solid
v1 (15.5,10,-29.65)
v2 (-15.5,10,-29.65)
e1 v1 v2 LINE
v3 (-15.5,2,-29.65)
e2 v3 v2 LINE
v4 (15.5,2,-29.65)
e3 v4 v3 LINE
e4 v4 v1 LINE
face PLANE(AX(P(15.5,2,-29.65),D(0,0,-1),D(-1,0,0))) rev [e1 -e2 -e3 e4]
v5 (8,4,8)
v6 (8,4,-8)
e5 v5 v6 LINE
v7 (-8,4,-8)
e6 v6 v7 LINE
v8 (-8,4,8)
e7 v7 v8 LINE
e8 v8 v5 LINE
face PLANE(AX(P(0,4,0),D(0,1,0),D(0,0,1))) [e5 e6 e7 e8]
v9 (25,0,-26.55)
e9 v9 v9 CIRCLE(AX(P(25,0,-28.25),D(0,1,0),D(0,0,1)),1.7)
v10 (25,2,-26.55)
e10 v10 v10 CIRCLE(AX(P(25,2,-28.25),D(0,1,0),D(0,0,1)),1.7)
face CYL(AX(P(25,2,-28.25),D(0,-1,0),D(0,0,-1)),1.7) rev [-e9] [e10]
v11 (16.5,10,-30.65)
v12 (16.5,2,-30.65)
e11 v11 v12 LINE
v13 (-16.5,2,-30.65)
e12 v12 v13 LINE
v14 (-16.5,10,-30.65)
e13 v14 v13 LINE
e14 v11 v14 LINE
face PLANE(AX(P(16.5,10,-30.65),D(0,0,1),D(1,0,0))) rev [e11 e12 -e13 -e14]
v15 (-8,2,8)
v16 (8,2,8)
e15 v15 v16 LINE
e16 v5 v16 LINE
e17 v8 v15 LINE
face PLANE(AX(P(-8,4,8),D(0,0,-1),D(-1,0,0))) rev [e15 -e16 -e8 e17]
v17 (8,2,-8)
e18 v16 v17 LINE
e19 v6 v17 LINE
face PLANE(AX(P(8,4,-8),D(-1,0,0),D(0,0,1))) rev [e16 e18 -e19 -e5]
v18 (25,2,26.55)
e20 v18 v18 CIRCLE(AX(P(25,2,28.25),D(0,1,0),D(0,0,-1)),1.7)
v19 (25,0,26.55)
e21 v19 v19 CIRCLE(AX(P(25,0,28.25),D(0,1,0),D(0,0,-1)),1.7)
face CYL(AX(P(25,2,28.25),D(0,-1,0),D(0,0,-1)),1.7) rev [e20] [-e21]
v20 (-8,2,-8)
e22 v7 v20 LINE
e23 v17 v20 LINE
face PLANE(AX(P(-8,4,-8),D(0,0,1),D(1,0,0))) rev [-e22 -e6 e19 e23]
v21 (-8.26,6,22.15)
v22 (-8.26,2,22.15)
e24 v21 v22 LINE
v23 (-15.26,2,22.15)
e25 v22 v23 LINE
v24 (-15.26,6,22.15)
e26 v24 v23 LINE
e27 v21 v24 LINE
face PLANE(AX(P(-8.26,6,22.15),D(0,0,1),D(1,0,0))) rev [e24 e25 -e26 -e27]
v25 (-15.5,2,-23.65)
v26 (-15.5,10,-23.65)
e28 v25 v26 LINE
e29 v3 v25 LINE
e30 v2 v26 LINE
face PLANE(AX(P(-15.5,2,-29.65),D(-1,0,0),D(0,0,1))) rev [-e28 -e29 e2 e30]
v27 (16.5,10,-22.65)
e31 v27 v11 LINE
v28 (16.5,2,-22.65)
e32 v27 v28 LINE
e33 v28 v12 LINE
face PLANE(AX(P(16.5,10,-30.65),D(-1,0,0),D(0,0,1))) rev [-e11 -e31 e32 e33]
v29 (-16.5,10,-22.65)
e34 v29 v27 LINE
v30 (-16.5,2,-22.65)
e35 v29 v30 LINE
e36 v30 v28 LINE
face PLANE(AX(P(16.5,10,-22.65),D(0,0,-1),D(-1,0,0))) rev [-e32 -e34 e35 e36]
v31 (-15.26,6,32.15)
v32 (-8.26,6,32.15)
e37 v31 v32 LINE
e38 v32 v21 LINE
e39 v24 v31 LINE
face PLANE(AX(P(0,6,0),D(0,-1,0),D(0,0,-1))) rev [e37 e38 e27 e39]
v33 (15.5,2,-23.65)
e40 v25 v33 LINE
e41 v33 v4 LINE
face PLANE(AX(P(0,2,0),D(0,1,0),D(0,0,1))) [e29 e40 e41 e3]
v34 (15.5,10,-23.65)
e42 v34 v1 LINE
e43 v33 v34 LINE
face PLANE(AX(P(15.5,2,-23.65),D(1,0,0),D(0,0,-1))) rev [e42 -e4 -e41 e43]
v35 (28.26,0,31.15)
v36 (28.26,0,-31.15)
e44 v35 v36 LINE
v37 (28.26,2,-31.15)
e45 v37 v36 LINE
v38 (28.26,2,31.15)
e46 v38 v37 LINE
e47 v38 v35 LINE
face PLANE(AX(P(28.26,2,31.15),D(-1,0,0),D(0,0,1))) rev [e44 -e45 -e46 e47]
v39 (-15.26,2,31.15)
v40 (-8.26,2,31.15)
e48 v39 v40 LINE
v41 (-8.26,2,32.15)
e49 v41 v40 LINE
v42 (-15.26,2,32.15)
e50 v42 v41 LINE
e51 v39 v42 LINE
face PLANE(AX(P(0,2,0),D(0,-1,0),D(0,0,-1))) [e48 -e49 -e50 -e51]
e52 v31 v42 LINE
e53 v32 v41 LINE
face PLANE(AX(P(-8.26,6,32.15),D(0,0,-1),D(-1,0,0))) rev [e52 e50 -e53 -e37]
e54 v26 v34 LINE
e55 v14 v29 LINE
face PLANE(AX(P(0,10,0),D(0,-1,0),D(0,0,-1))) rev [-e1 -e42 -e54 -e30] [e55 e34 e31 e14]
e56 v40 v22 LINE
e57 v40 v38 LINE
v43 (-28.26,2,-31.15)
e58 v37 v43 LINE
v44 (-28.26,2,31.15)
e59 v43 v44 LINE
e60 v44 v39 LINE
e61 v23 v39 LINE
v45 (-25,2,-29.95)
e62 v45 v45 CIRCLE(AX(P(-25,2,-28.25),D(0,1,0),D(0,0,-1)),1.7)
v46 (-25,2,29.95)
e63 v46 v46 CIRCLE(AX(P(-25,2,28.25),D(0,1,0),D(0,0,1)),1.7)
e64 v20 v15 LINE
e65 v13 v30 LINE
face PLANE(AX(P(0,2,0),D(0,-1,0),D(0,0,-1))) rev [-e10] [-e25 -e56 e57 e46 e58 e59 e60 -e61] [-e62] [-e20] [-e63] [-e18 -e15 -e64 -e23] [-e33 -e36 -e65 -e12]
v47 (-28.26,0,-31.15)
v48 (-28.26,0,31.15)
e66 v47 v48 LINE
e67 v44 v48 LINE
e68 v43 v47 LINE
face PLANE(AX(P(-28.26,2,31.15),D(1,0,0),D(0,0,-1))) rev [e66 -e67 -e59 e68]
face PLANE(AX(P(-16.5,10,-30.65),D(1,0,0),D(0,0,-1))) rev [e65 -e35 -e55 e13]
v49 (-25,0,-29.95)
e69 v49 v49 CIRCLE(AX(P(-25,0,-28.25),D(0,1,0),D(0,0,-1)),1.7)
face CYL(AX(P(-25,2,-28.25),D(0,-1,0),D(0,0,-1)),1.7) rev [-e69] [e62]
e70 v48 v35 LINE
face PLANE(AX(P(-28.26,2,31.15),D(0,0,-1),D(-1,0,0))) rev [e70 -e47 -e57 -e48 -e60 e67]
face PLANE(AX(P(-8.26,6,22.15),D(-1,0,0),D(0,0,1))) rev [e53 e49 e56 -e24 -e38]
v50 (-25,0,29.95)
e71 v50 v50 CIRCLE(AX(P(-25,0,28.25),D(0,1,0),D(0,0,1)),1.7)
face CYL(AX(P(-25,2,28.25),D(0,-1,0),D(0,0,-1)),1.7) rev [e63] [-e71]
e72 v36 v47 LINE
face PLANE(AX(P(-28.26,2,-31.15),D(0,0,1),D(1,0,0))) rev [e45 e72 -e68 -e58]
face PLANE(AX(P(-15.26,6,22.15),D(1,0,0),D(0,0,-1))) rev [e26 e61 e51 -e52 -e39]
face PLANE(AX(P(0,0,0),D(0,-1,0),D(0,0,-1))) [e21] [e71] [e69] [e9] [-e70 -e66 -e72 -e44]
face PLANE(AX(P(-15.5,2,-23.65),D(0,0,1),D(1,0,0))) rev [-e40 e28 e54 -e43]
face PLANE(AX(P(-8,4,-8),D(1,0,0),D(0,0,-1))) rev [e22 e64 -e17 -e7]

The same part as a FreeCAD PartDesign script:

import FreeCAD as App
import Part
import Sketcher

doc = App.newDocument("Part")
params = doc.addObject("Spreadsheet::Sheet", "Params")
for row, (alias, value) in enumerate([
    ("sketch1_diameter", "3.4 mm"),
    ("sketch1_height", "62.3 mm"),
    ("sketch1_width", "56.52 mm"),
    ("pad1_length", "2 mm"),
    ("sketch2_width", "16 mm"),
    ("pad2_length", "2 mm"),
    ("sketch3_width", "33 mm"),
    ("sketch3_height", "8 mm"),
    ("pad3_length", "8 mm"),
    ("sketch4_width", "31 mm"),
    ("sketch4_height", "6 mm"),
    ("pocket1_length", "8 mm"),
    ("sketch5_width", "7 mm"),
    ("sketch5_height", "10 mm"),
    ("pad4_length", "4 mm"),
], start=1):
    params.set(f"A{row}", alias)
    params.set(f"B{row}", "=" + value)
    params.setAlias(f"B{row}", alias)

body = doc.addObject("PartDesign::Body", "Body")

# Sketch on XZ plane
sketch1 = body.newObject("Sketcher::SketchObject", "Sketch")
sketch1.AttachmentSupport = (doc.getObject("XZ_Plane"), [""])
sketch1.MapMode = "FlatFace"
sketch1.addGeometry([
    Part.LineSegment(App.Vector(-28.26, -31.15, 0), App.Vector(-28.26, 31.15, 0)),  # 0
    Part.LineSegment(App.Vector(-28.26, 31.15, 0), App.Vector(28.26, 31.15, 0)),  # 1
    Part.LineSegment(App.Vector(28.26, 31.15, 0), App.Vector(28.26, -31.15, 0)),  # 2
    Part.LineSegment(App.Vector(28.26, -31.15, 0), App.Vector(-28.26, -31.15, 0)),  # 3
    Part.Circle(App.Vector(-25, 28.25, 0), App.Vector(0, 0, 1), 1.7),  # 4
    Part.Circle(App.Vector(25, 28.25, 0), App.Vector(0, 0, 1), 1.7),  # 5
    Part.Circle(App.Vector(-25, -28.25, 0), App.Vector(0, 0, 1), 1.7),  # 6
    Part.Circle(App.Vector(25, -28.25, 0), App.Vector(0, 0, 1), 1.7),  # 7
], False)
sketch1.addConstraint([
    Sketcher.Constraint("Coincident", 0, 2, 1, 1),
    Sketcher.Constraint("Coincident", 1, 2, 2, 1),
    Sketcher.Constraint("Coincident", 2, 2, 3, 1),
    Sketcher.Constraint("Coincident", 3, 2, 0, 1),
    Sketcher.Constraint("Vertical", 0),
    Sketcher.Constraint("Horizontal", 1),
    Sketcher.Constraint("Vertical", 2),
    Sketcher.Constraint("Horizontal", 3),
    Sketcher.Constraint("Equal", 4, 5),
    Sketcher.Constraint("Equal", 5, 6),
    Sketcher.Constraint("Equal", 6, 7),
    Sketcher.Constraint("Symmetric", 5, 3, 6, 3, -1, 1),
    Sketcher.Constraint("Symmetric", 4, 3, 7, 3, -1, 1),
    Sketcher.Constraint("Symmetric", 0, 2, 2, 2, -1, 1),
    Sketcher.Constraint("Symmetric", 4, 3, 5, 3, -2),
    Sketcher.Constraint("Diameter", 4, 3.4),
    Sketcher.Constraint("DistanceY", 0, 1, 0, 2, 62.3),
    Sketcher.Constraint("DistanceX", 4, 3, -1, 1, 25.0),
    Sketcher.Constraint("DistanceX", 1, 1, 1, 2, 56.52),
    Sketcher.Constraint("DistanceY", 6, 3, 4, 3, 56.5),
])
sketch1.setExpression("Constraints[15]", "Params.sketch1_diameter")
sketch1.setExpression("Constraints[16]", "Params.sketch1_height")
sketch1.setExpression("Constraints[18]", "Params.sketch1_width")
pad1 = body.newObject("PartDesign::Pad", "Pad")
pad1.Profile = sketch1
pad1.setExpression("Length", "Params.pad1_length")
pad1.Reversed = True

# Sketch on XZ plane
sketch2 = body.newObject("Sketcher::SketchObject", "Sketch001")
sketch2.AttachmentSupport = (doc.getObject("XZ_Plane"), [""])
sketch2.MapMode = "FlatFace"
sketch2.AttachmentOffset = App.Placement(App.Vector(0, 0, -2), App.Rotation())
sketch2.addGeometry([
    Part.LineSegment(App.Vector(-8, -8, 0), App.Vector(-8, 8, 0)),
    Part.LineSegment(App.Vector(-8, 8, 0), App.Vector(8, 8, 0)),
    Part.LineSegment(App.Vector(8, 8, 0), App.Vector(8, -8, 0)),
    Part.LineSegment(App.Vector(8, -8, 0), App.Vector(-8, -8, 0)),
], False)
sketch2.addConstraint([
    Sketcher.Constraint("Coincident", 0, 2, 1, 1),
    Sketcher.Constraint("Coincident", 1, 2, 2, 1),
    Sketcher.Constraint("Coincident", 2, 2, 3, 1),
    Sketcher.Constraint("Coincident", 3, 2, 0, 1),
    Sketcher.Constraint("Vertical", 0),
    Sketcher.Constraint("Horizontal", 1),
    Sketcher.Constraint("Vertical", 2),
    Sketcher.Constraint("Horizontal", 3),
    Sketcher.Constraint("Symmetric", 0, 2, 2, 2, -1, 1),
    Sketcher.Constraint("Equal", 3, 0),
    Sketcher.Constraint("DistanceX", 1, 1, 1, 2, 16.0),
])
sketch2.setExpression("Constraints[10]", "Params.sketch2_width")
pad2 = body.newObject("PartDesign::Pad", "Pad001")
pad2.Profile = sketch2
pad2.setExpression("Length", "Params.pad2_length")
pad2.Reversed = True

# Sketch on XZ plane
sketch3 = body.newObject("Sketcher::SketchObject", "Sketch002")
sketch3.AttachmentSupport = (doc.getObject("XZ_Plane"), [""])
sketch3.MapMode = "FlatFace"
sketch3.AttachmentOffset = App.Placement(App.Vector(0, 0, -2), App.Rotation())
sketch3.addGeometry([
    Part.LineSegment(App.Vector(-16.5, -30.65, 0), App.Vector(-16.5, -22.65, 0)),
    Part.LineSegment(App.Vector(-16.5, -22.65, 0), App.Vector(16.5, -22.65, 0)),
    Part.LineSegment(App.Vector(16.5, -22.65, 0), App.Vector(16.5, -30.65, 0)),
    Part.LineSegment(App.Vector(16.5, -30.65, 0), App.Vector(-16.5, -30.65, 0)),
], False)
sketch3.addConstraint([
    Sketcher.Constraint("Coincident", 0, 2, 1, 1),
    Sketcher.Constraint("Coincident", 1, 2, 2, 1),
    Sketcher.Constraint("Coincident", 2, 2, 3, 1),
    Sketcher.Constraint("Coincident", 3, 2, 0, 1),
    Sketcher.Constraint("Vertical", 0),
    Sketcher.Constraint("Horizontal", 1),
    Sketcher.Constraint("Vertical", 2),
    Sketcher.Constraint("Horizontal", 3),
    Sketcher.Constraint("DistanceX", 1, 1, 1, 2, 33.0),
    Sketcher.Constraint("DistanceY", 0, 1, 0, 2, 8.0),
    Sketcher.Constraint("DistanceX", 0, 2, -1, 1, 16.5),
    Sketcher.Constraint("DistanceY", 0, 2, -1, 1, 22.65),
])
sketch3.setExpression("Constraints[8]", "Params.sketch3_width")
sketch3.setExpression("Constraints[9]", "Params.sketch3_height")
pad3 = body.newObject("PartDesign::Pad", "Pad002")
pad3.Profile = sketch3
pad3.setExpression("Length", "Params.pad3_length")
pad3.Reversed = True

# Sketch on XZ plane
sketch4 = body.newObject("Sketcher::SketchObject", "Sketch003")
sketch4.AttachmentSupport = (doc.getObject("XZ_Plane"), [""])
sketch4.MapMode = "FlatFace"
sketch4.AttachmentOffset = App.Placement(App.Vector(0, 0, -10), App.Rotation())
sketch4.addGeometry([
    Part.LineSegment(App.Vector(-15.5, -29.65, 0), App.Vector(-15.5, -23.65, 0)),
    Part.LineSegment(App.Vector(-15.5, -23.65, 0), App.Vector(15.5, -23.65, 0)),
    Part.LineSegment(App.Vector(15.5, -23.65, 0), App.Vector(15.5, -29.65, 0)),
    Part.LineSegment(App.Vector(15.5, -29.65, 0), App.Vector(-15.5, -29.65, 0)),
], False)
sketch4.addConstraint([
    Sketcher.Constraint("Coincident", 0, 2, 1, 1),
    Sketcher.Constraint("Coincident", 1, 2, 2, 1),
    Sketcher.Constraint("Coincident", 2, 2, 3, 1),
    Sketcher.Constraint("Coincident", 3, 2, 0, 1),
    Sketcher.Constraint("Vertical", 0),
    Sketcher.Constraint("Horizontal", 1),
    Sketcher.Constraint("Vertical", 2),
    Sketcher.Constraint("Horizontal", 3),
    Sketcher.Constraint("DistanceX", 1, 1, 1, 2, 31.0),
    Sketcher.Constraint("DistanceY", 0, 1, 0, 2, 6.0),
    Sketcher.Constraint("DistanceX", 0, 2, -1, 1, 15.5),
    Sketcher.Constraint("DistanceY", 0, 2, -1, 1, 23.65),
])
sketch4.setExpression("Constraints[8]", "Params.sketch4_width")
sketch4.setExpression("Constraints[9]", "Params.sketch4_height")
pocket1 = body.newObject("PartDesign::Pocket", "Pocket")
pocket1.Profile = sketch4
pocket1.setExpression("Length", "Params.pocket1_length")
pocket1.Reversed = True

# Sketch on XZ plane
sketch5 = body.newObject("Sketcher::SketchObject", "Sketch004")
sketch5.AttachmentSupport = (doc.getObject("XZ_Plane"), [""])
sketch5.MapMode = "FlatFace"
sketch5.AttachmentOffset = App.Placement(App.Vector(0, 0, -2), App.Rotation())
sketch5.addGeometry([
    Part.LineSegment(App.Vector(-15.26, 22.15, 0), App.Vector(-15.26, 32.15, 0)),
    Part.LineSegment(App.Vector(-15.26, 32.15, 0), App.Vector(-8.26, 32.15, 0)),
    Part.LineSegment(App.Vector(-8.26, 32.15, 0), App.Vector(-8.26, 22.15, 0)),
    Part.LineSegment(App.Vector(-8.26, 22.15, 0), App.Vector(-15.26, 22.15, 0)),
], False)
sketch5.addConstraint([
    Sketcher.Constraint("Coincident", 0, 2, 1, 1),
    Sketcher.Constraint("Coincident", 1, 2, 2, 1),
    Sketcher.Constraint("Coincident", 2, 2, 3, 1),
    Sketcher.Constraint("Coincident", 3, 2, 0, 1),
    Sketcher.Constraint("Vertical", 0),
    Sketcher.Constraint("Horizontal", 1),
    Sketcher.Constraint("Vertical", 2),
    Sketcher.Constraint("Horizontal", 3),
    Sketcher.Constraint("DistanceX", 1, 1, 1, 2, 7.0),
    Sketcher.Constraint("DistanceY", 0, 1, 0, 2, 10.0),
    Sketcher.Constraint("DistanceX", 0, 2, -1, 1, 15.26),
    Sketcher.Constraint("DistanceY", -1, 1, 0, 2, 32.15),
])
sketch5.setExpression("Constraints[8]", "Params.sketch5_width")
sketch5.setExpression("Constraints[9]", "Params.sketch5_height")
pad4 = body.newObject("PartDesign::Pad", "Pad003")
pad4.Profile = sketch5
pad4.setExpression("Length", "Params.pad4_length")
pad4.Reversed = True

doc.recompute()
